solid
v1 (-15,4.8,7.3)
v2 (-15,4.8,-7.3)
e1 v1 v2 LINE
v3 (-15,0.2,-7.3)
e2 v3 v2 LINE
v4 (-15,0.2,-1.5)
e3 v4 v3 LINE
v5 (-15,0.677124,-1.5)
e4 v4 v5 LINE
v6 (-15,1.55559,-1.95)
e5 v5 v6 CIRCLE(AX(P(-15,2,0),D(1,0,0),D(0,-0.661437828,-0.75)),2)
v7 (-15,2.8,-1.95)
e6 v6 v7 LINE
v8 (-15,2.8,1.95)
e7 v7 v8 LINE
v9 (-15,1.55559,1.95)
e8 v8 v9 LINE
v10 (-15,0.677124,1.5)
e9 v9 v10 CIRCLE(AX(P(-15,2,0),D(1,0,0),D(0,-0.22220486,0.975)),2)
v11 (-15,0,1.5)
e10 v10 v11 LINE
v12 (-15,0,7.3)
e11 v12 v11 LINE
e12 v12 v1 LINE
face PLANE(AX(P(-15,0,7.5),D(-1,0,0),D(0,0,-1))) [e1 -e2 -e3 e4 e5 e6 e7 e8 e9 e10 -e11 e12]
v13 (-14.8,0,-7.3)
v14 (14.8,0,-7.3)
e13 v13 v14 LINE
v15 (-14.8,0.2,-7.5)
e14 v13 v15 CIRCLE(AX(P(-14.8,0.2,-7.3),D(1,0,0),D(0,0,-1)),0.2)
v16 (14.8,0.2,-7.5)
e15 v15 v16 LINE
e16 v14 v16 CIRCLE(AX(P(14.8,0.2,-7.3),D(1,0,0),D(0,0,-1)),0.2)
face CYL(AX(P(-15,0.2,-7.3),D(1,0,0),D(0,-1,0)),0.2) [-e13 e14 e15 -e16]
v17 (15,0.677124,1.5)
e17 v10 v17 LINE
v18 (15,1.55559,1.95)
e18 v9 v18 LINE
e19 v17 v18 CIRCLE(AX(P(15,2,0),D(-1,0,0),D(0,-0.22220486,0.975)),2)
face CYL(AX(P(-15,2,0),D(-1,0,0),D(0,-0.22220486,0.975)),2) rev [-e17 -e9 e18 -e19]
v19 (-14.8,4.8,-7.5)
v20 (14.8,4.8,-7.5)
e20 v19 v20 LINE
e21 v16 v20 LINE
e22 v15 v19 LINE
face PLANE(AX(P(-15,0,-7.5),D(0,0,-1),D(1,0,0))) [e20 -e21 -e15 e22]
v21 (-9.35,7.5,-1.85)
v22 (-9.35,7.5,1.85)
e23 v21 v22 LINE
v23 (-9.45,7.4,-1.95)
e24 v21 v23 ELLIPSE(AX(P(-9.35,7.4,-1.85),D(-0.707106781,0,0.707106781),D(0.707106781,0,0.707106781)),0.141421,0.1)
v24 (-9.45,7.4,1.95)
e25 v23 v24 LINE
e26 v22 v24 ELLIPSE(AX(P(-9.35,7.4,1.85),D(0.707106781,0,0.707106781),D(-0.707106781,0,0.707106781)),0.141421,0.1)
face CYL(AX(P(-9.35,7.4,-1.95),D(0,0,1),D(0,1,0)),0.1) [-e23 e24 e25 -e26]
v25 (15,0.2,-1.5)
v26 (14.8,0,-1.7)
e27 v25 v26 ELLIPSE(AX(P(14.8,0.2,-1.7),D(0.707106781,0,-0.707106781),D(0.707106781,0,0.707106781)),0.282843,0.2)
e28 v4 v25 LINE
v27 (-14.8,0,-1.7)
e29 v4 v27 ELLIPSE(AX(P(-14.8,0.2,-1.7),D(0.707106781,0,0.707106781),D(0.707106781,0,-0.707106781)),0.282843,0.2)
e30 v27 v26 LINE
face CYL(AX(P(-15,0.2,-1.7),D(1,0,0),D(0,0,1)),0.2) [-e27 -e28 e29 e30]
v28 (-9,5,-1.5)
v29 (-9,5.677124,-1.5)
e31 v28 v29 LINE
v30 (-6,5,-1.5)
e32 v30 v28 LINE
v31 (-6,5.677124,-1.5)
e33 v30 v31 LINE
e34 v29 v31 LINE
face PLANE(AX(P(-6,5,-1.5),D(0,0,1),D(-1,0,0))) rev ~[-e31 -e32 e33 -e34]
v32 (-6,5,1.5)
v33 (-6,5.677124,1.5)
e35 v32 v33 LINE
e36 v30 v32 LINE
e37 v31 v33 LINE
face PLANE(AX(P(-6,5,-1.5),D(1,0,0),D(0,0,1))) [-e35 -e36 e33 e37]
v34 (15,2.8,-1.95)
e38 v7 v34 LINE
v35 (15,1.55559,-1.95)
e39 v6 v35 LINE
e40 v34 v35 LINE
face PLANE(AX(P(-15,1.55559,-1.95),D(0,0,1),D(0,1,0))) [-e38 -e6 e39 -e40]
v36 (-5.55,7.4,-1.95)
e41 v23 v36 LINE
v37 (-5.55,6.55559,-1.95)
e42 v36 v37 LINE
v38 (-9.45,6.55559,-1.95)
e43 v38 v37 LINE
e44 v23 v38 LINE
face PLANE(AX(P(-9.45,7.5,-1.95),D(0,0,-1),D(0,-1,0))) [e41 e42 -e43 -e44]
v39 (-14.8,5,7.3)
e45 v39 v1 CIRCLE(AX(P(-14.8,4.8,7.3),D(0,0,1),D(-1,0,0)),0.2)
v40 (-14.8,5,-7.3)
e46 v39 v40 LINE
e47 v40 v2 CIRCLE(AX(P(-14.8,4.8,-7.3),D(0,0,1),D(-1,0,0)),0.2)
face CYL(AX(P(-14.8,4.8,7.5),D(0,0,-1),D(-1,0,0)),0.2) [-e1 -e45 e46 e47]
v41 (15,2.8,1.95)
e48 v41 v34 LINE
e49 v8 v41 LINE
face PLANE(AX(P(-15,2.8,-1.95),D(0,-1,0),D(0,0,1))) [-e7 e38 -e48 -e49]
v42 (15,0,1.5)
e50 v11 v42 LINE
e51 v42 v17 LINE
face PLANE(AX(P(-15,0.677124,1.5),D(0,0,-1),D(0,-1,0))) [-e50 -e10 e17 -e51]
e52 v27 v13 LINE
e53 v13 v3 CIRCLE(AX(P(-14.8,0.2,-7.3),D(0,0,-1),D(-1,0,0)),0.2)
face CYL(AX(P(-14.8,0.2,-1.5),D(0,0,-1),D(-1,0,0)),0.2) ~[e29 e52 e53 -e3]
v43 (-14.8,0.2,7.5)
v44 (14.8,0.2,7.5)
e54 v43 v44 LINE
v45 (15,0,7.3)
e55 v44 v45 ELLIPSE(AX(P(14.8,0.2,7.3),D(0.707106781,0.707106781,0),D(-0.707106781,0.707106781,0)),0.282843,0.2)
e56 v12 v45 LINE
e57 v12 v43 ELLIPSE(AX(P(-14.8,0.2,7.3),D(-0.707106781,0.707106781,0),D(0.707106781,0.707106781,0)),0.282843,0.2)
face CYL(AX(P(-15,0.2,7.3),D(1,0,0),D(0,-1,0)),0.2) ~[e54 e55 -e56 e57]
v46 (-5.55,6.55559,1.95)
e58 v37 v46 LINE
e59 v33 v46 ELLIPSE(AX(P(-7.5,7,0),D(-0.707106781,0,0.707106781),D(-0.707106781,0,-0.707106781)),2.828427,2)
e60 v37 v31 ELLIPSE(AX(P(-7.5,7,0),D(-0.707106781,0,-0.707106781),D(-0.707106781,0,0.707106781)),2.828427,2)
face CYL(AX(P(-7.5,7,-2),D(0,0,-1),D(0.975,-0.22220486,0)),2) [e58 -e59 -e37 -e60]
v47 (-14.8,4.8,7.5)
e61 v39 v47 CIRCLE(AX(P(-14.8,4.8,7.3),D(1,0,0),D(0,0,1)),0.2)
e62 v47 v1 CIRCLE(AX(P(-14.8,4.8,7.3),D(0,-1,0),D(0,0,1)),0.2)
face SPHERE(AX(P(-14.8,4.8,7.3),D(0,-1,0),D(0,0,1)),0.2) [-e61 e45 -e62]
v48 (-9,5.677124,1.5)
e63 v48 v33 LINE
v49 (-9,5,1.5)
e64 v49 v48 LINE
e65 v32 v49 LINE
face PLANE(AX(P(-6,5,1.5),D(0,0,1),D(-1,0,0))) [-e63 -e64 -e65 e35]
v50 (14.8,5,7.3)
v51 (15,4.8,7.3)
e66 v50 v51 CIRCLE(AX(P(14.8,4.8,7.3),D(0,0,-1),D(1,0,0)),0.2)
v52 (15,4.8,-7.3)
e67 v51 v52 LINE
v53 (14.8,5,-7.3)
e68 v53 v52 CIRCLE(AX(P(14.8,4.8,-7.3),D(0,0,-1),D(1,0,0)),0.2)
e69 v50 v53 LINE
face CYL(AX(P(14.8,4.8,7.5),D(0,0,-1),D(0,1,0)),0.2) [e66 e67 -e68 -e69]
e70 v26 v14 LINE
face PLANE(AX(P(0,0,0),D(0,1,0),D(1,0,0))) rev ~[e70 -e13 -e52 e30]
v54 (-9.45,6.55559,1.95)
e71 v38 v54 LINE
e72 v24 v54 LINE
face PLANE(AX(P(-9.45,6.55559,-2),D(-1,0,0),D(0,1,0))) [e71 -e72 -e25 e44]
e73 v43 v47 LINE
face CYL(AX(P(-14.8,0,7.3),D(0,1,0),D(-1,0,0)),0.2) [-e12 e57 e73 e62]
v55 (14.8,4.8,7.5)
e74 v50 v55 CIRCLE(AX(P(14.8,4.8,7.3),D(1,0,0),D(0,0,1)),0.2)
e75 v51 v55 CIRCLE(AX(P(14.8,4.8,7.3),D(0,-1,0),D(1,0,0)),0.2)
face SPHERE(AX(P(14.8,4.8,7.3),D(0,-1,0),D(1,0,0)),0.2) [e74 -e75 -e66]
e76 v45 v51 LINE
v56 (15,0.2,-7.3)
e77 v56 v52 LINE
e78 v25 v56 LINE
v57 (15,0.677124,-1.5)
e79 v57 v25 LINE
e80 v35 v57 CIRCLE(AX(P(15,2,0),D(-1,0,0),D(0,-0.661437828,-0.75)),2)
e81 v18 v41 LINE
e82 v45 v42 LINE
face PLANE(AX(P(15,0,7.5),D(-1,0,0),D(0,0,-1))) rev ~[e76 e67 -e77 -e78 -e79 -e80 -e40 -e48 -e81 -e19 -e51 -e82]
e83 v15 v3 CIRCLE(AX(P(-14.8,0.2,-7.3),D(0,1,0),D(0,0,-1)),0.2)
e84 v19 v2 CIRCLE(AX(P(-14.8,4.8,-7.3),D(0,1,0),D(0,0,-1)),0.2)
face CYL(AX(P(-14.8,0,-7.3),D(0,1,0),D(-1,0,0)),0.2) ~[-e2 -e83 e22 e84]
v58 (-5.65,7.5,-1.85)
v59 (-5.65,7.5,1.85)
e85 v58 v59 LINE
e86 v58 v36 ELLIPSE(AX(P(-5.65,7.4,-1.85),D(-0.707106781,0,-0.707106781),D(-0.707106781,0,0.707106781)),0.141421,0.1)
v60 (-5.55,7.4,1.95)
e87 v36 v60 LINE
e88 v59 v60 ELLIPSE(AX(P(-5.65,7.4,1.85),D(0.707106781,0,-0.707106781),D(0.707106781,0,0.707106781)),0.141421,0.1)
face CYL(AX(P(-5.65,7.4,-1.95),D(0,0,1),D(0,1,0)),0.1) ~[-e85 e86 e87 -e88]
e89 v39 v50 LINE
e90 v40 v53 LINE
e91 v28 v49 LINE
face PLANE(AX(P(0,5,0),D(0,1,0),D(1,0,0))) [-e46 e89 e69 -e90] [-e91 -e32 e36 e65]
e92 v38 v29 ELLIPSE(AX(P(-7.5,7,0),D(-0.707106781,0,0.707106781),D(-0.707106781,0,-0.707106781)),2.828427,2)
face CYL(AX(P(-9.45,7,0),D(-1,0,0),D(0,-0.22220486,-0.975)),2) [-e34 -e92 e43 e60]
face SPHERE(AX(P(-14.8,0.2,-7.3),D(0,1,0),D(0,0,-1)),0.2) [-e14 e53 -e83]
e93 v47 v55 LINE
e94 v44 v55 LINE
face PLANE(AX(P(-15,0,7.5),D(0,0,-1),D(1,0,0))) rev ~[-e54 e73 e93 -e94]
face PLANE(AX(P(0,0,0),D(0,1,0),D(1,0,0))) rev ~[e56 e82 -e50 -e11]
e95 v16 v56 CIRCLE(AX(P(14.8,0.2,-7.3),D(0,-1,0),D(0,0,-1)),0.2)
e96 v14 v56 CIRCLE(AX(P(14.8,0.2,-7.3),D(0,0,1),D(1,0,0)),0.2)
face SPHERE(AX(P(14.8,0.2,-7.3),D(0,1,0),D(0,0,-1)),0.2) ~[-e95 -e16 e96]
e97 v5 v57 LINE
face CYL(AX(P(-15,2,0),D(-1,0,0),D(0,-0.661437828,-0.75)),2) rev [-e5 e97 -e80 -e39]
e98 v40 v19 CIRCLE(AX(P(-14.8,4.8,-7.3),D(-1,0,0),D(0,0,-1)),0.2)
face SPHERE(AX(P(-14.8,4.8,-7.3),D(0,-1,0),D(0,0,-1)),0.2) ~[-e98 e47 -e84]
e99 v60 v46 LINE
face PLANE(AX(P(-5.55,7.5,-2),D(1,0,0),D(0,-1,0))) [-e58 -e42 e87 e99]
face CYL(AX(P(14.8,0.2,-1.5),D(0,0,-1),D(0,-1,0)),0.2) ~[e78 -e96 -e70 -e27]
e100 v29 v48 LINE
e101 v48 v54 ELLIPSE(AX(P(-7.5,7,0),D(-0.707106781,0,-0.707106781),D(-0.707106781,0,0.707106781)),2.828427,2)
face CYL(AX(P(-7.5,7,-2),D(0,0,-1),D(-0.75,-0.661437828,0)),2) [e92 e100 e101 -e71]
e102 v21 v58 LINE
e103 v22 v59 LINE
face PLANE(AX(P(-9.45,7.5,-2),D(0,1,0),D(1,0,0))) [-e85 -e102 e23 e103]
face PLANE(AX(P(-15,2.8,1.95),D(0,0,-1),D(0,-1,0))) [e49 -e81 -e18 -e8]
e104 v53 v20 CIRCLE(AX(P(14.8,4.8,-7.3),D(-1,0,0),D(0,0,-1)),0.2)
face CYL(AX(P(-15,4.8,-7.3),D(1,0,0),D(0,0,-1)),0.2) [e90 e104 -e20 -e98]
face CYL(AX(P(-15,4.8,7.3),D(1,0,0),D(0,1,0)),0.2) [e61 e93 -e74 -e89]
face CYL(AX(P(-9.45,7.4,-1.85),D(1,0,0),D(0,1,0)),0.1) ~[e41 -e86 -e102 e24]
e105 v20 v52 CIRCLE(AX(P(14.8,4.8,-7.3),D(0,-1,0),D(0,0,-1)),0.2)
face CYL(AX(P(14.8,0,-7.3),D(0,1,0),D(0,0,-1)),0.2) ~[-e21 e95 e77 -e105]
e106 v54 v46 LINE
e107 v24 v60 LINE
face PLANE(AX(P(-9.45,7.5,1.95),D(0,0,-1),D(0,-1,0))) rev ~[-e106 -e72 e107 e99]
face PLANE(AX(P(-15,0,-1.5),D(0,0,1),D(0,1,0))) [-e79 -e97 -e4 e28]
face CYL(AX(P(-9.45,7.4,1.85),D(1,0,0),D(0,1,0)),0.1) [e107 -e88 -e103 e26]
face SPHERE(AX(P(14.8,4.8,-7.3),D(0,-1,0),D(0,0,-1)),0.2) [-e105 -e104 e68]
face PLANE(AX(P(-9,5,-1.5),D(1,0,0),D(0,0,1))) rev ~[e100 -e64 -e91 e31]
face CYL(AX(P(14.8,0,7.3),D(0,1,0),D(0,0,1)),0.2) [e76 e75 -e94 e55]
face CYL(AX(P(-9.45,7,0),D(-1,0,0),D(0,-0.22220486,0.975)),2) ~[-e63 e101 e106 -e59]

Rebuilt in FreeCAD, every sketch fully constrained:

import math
import FreeCAD as App
import Part
import Sketcher
Q = App.Units.Quantity


def edges_at(feature, points):
    """Names of the edges that pass closest to the given points."""
    edges = feature.Shape.Edges
    near = lambda p: min(range(len(edges)), key=lambda i: edges[i].distToShape(Part.Vertex(*p))[0])
    return sorted({f"Edge{near(p) + 1}" for p in points})

doc = App.newDocument("Part")
body = doc.addObject("PartDesign::Body", "Body")

sketch1 = body.newObject("Sketcher::SketchObject", "Sketch")
sketch1.AttachmentSupport = (doc.getObject("XZ_Plane"), [""])
sketch1.MapMode = "FlatFace"
sketch1.addGeometry([
    Part.LineSegment(App.Vector(-15, -8, 0), App.Vector(-15, 8, 0)),
    Part.LineSegment(App.Vector(-15, 8, 0), App.Vector(15, 8, 0)),
    Part.LineSegment(App.Vector(15, 8, 0), App.Vector(15, -8, 0)),
    Part.LineSegment(App.Vector(15, -8, 0), App.Vector(-15, -8, 0)),
], False)
sketch1.addConstraint([
    Sketcher.Constraint("Coincident", 0, 2, 1, 1),
    Sketcher.Constraint("Coincident", 1, 2, 2, 1),
    Sketcher.Constraint("Coincident", 2, 2, 3, 1),
    Sketcher.Constraint("Coincident", 3, 2, 0, 1),
    Sketcher.Constraint("Vertical", 0),
    Sketcher.Constraint("Horizontal", 1),
    Sketcher.Constraint("Vertical", 2),
    Sketcher.Constraint("Horizontal", 3),
    Sketcher.Constraint("Symmetric", 0, 2, 2, 2, -1, 1),
    Sketcher.Constraint("DistanceX", 1, 1, 1, 2, Q("30 mm")),
    Sketcher.Constraint("DistanceY", 0, 1, 0, 2, Q("15 mm")),
])
pad1 = body.newObject("PartDesign::Pad", "Pad")
pad1.Profile = sketch1
pad1.Length = 5
pad1.Reversed = True

sketch2 = body.newObject("Sketcher::SketchObject", "Sketch001")
sketch2.AttachmentSupport = (doc.getObject("YZ_Plane"), [""])
sketch2.MapMode = "FlatFace"
sketch2.AttachmentOffset = App.Placement(App.Vector(0, 0, -15), App.Rotation())
sketch2.addGeometry([
    Part.LineSegment(App.Vector(0.7, -1.5, 0), App.Vector(0, -1.5, 0)),
    Part.LineSegment(App.Vector(0, -1.5, 0), App.Vector(0, 1.5, 0)),
    Part.LineSegment(App.Vector(0, 1.5, 0), App.Vector(0.7, 1.5, 0)),
    Part.ArcOfCircle(Part.Circle(App.Vector(2, 0, 0), App.Vector(0, 0, 1), 2), math.radians(103), math.radians(131)),
    Part.LineSegment(App.Vector(1.6, 1.9, 0), App.Vector(2.8, 1.9, 0)),
    Part.LineSegment(App.Vector(2.8, 1.9, 0), App.Vector(2.8, -1.9, 0)),
    Part.LineSegment(App.Vector(2.8, -1.9, 0), App.Vector(1.6, -1.9, 0)),
    Part.ArcOfCircle(Part.Circle(App.Vector(2, 0, 0), App.Vector(0, 0, 1), 2), math.radians(-131), math.radians(-103)),
], False)
sketch2.addConstraint([
    Sketcher.Constraint("Coincident", 0, 2, 1, 1),
    Sketcher.Constraint("Coincident", 1, 2, 2, 1),
    Sketcher.Constraint("Coincident", 2, 2, 3, 2),
    Sketcher.Constraint("Coincident", 3, 1, 4, 1),
    Sketcher.Constraint("Coincident", 4, 2, 5, 1),
    Sketcher.Constraint("Coincident", 5, 2, 6, 1),
    Sketcher.Constraint("Coincident", 6, 2, 7, 2),
    Sketcher.Constraint("Coincident", 7, 1, 0, 1),
    Sketcher.Constraint("Horizontal", 0),
    Sketcher.Constraint("Vertical", 1),
    Sketcher.Constraint("Horizontal", 2),
    Sketcher.Constraint("Horizontal", 4),
    Sketcher.Constraint("Vertical", 5),
    Sketcher.Constraint("Horizontal", 6),
    Sketcher.Constraint("Coincident", 7, 3, 3, 3),
    Sketcher.Constraint("Equal", 3, 7),
    Sketcher.Constraint("Symmetric", 0, 2, 1, 2, -1, 1),
    Sketcher.Constraint("Symmetric", 3, 1, 6, 2, -1),
    Sketcher.Constraint("Radius", 3, Q("2 mm")),
    Sketcher.Constraint("DistanceY", 1, 1, 1, 2, Q("3 mm")),
    Sketcher.Constraint("DistanceY", 5, 2, 5, 1, Q("3.9 mm")),
    Sketcher.Constraint("DistanceX", -1, 1, 3, 3, Q("2 mm")),
    Sketcher.Constraint("DistanceX", -1, 1, 4, 2, Q("2.8 mm")),
])
pocket1 = body.newObject("PartDesign::Pocket", "Pocket")
pocket1.Profile = sketch2
pocket1.Type = "UpToFirst"
pocket1.Reversed = True
doc.recompute()

fillet = body.newObject("PartDesign::Fillet", "Fillet")
fillet.Base = (pocket1, edges_at(pocket1, [
    (15, 2.5, -7.5),
    (-15, 2.5, -7.5),
    (0, 0, -7.5),
    (-15, 0, -4.5),
    (0, 0, -1.5),
    (-15, 2.5, 7.5),
    (15, 2.5, 7.5),
    (0, 0, 7.5),
    (0, 5, -7.5),
    (15, 5, 0),
    (0, 5, 7.5),
    (-15, 5, 0),
    (15, 0, -4.5),
]))
fillet.Radius = 0.2

sketch3 = body.newObject("Sketcher::SketchObject", "Sketch002")
sketch3.AttachmentSupport = (doc.getObject("XZ_Plane"), [""])
sketch3.MapMode = "FlatFace"
sketch3.AttachmentOffset = App.Placement(App.Vector(0, 0, -5), App.Rotation())
sketch3.addGeometry([
    Part.LineSegment(App.Vector(-6, 1.5, 0), App.Vector(-6, -1.5, 0)),
    Part.LineSegment(App.Vector(-6, -1.5, 0), App.Vector(-9, -1.5, 0)),
    Part.LineSegment(App.Vector(-9, -1.5, 0), App.Vector(-9, 1.5, 0)),
    Part.LineSegment(App.Vector(-9, 1.5, 0), App.Vector(-6, 1.5, 0)),
], False)
sketch3.addConstraint([
    Sketcher.Constraint("Coincident", 0, 2, 1, 1),
    Sketcher.Constraint("Coincident", 1, 2, 2, 1),
    Sketcher.Constraint("Coincident", 2, 2, 3, 1),
    Sketcher.Constraint("Coincident", 3, 2, 0, 1),
    Sketcher.Constraint("Vertical", 0),
    Sketcher.Constraint("Horizontal", 1),
    Sketcher.Constraint("Vertical", 2),
    Sketcher.Constraint("Horizontal", 3),
    Sketcher.Constraint("Equal", 3, 0),
    Sketcher.Constraint("DistanceX", 1, 2, 1, 1, Q("3 mm")),
    Sketcher.Constraint("DistanceX", 0, 2, -1, 1, Q("6 mm")),
    Sketcher.Constraint("DistanceY", 0, 2, -1, 1, Q("1.5 mm")),
])
pad2 = body.newObject("PartDesign::Pad", "Pad001")
pad2.Profile = sketch3
pad2.Length = 1
pad2.Reversed = True

sketch4 = body.newObject("Sketcher::SketchObject", "Sketch003")
sketch4.AttachmentSupport = (doc.getObject("XY_Plane"), [""])
sketch4.MapMode = "FlatFace"
sketch4.addGeometry([
    Part.LineSegment(App.Vector(-5.5, 7.5, 0), App.Vector(-9.4, 7.5, 0)),
    Part.LineSegment(App.Vector(-9.4, 7.5, 0), App.Vector(-9.4, 6.6, 0)),
    Part.ArcOfCircle(Part.Circle(App.Vector(-7.5, 7, 0), App.Vector(0, 0, 1), 2), math.radians(-167), math.radians(-139)),
    Part.LineSegment(App.Vector(-9, 5.7, 0), App.Vector(-6, 5.7, 0)),
    Part.ArcOfCircle(Part.Circle(App.Vector(-7.5, 7, 0), App.Vector(0, 0, 1), 2), math.radians(-41), math.radians(-13)),
    Part.LineSegment(App.Vector(-5.5, 6.6, 0), App.Vector(-5.5, 7.5, 0)),
], False)
sketch4.addConstraint([
    Sketcher.Constraint("Coincident", 0, 2, 1, 1),
    Sketcher.Constraint("Coincident", 1, 2, 2, 1),
    Sketcher.Constraint("Coincident", 2, 2, 3, 1),
    Sketcher.Constraint("Coincident", 3, 2, 4, 1),
    Sketcher.Constraint("Coincident", 4, 2, 5, 1),
    Sketcher.Constraint("Coincident", 5, 2, 0, 1),
    Sketcher.Constraint("Horizontal", 0),
    Sketcher.Constraint("Vertical", 1),
    Sketcher.Constraint("Horizontal", 3),
    Sketcher.Constraint("Vertical", 5),
    Sketcher.Constraint("Coincident", 4, 3, 2, 3),
    Sketcher.Constraint("Equal", 2, 4),
    Sketcher.Constraint("Horizontal", 1, 2, 4, 2),
    Sketcher.Constraint("Radius", 2, Q("2 mm")),
    Sketcher.Constraint("DistanceX", 3, 1, 3, 2, Q("3 mm")),
    Sketcher.Constraint("DistanceX", 0, 2, 0, 1, Q("3.9 mm")),
    Sketcher.Constraint("DistanceY", -1, 1, 2, 3, Q("7 mm")),
    Sketcher.Constraint("DistanceX", 2, 2, -1, 1, Q("9 mm")),
    Sketcher.Constraint("DistanceY", -1, 1, 0, 2, Q("7.5 mm")),
])
pad3 = body.newObject("PartDesign::Pad", "Pad002")
pad3.Profile = sketch4
pad3.Type = "TwoLengths"
pad3.Length = 2
pad3.Length2 = 2

sketch5 = body.newObject("Sketcher::SketchObject", "Sketch004")
sketch5.AttachmentSupport = (doc.getObject("YZ_Plane"), [""])
sketch5.MapMode = "FlatFace"
sketch5.AttachmentOffset = App.Placement(App.Vector(0, 0, -9.45), App.Rotation())
sketch5.addGeometry([
    Part.LineSegment(App.Vector(6.56, -1.95, 0), App.Vector(7.5, -1.95, 0)),
    Part.LineSegment(App.Vector(7.5, -1.95, 0), App.Vector(7.5, -2, 0)),
    Part.LineSegment(App.Vector(7.5, -2, 0), App.Vector(5.68, -2, 0)),
    Part.LineSegment(App.Vector(5.68, -2, 0), App.Vector(5.68, -1.5, 0)),
    Part.ArcOfCircle(Part.Circle(App.Vector(7, 0, 0), App.Vector(0, 0, 1), 2), math.radians(-131), math.radians(-103)),
], False)
sketch5.addConstraint([
    Sketcher.Constraint("Coincident", 0, 2, 1, 1),
    Sketcher.Constraint("Coincident", 1, 2, 2, 1),
    Sketcher.Constraint("Coincident", 2, 2, 3, 1),
    Sketcher.Constraint("Coincident", 3, 2, 4, 1),
    Sketcher.Constraint("Coincident", 4, 2, 0, 1),
    Sketcher.Constraint("Horizontal", 0),
    Sketcher.Constraint("Vertical", 1),
    Sketcher.Constraint("Horizontal", 2),
    Sketcher.Constraint("Vertical", 3),
    Sketcher.Constraint("PointOnObject", 4, 3, -1),
    Sketcher.Constraint("Radius", 4, Q("2 mm")),
    Sketcher.Constraint("DistanceY", 3, 1, 3, 2, Q("0.5 mm")),
    Sketcher.Constraint("DistanceX", -1, 1, 4, 3, Q("7 mm")),
    Sketcher.Constraint("DistanceY", 1, 2, -1, 1, Q("2 mm")),
    Sketcher.Constraint("DistanceY", 1, 2, 1, 1, Q("0.05 mm")),
    Sketcher.Constraint("DistanceX", -1, 1, 0, 2, Q("7.5 mm")),
])
pocket2 = body.newObject("PartDesign::Pocket", "Pocket001")
pocket2.Profile = sketch5
pocket2.Length = 3.9
pocket2.Reversed = True

sketch6 = body.newObject("Sketcher::SketchObject", "Sketch005")
sketch6.AttachmentSupport = (doc.getObject("YZ_Plane"), [""])
sketch6.MapMode = "FlatFace"
sketch6.AttachmentOffset = App.Placement(App.Vector(0, 0, -9.45), App.Rotation())
sketch6.addGeometry([
    Part.LineSegment(App.Vector(5.68, 2, 0), App.Vector(7.5, 2, 0)),
    Part.LineSegment(App.Vector(7.5, 2, 0), App.Vector(7.5, 1.95, 0)),
    Part.LineSegment(App.Vector(7.5, 1.95, 0), App.Vector(6.56, 1.95, 0)),
    Part.ArcOfCircle(Part.Circle(App.Vector(7, 0, 0), App.Vector(0, 0, 1), 2), math.radians(103), math.radians(131)),
    Part.LineSegment(App.Vector(5.68, 1.5, 0), App.Vector(5.68, 2, 0)),
], False)
sketch6.addConstraint([
    Sketcher.Constraint("Coincident", 0, 2, 1, 1),
    Sketcher.Constraint("Coincident", 1, 2, 2, 1),
    Sketcher.Constraint("Coincident", 2, 2, 3, 1),
    Sketcher.Constraint("Coincident", 3, 2, 4, 1),
    Sketcher.Constraint("Coincident", 4, 2, 0, 1),
    Sketcher.Constraint("Horizontal", 0),
    Sketcher.Constraint("Vertical", 1),
    Sketcher.Constraint("Horizontal", 2),
    Sketcher.Constraint("Vertical", 4),
    Sketcher.Constraint("PointOnObject", 3, 3, -1),
    Sketcher.Constraint("Radius", 3, Q("2 mm")),
    Sketcher.Constraint("DistanceY", 4, 1, 4, 2, Q("0.5 mm")),
    Sketcher.Constraint("DistanceX", -1, 1, 3, 3, Q("7 mm")),
    Sketcher.Constraint("DistanceY", -1, 1, 0, 2, Q("2 mm")),
    Sketcher.Constraint("DistanceY", 1, 2, 1, 1, Q("0.05 mm")),
    Sketcher.Constraint("DistanceX", -1, 1, 0, 2, Q("7.5 mm")),
])
pocket3 = body.newObject("PartDesign::Pocket", "Pocket002")
pocket3.Profile = sketch6
pocket3.Length = 3.9
pocket3.Reversed = True
doc.recompute()

fillet2 = body.newObject("PartDesign::Fillet", "Fillet001")
fillet2.Base = (pocket3, edges_at(pocket3, [
    (-5.55, 7.5, 0),
    (-9.45, 7.5, 0),
    (-7.5, 7.5, -1.95),
    (-7.5, 7.5, 1.95),
]))
fillet2.Radius = 0.1

doc.recompute()
